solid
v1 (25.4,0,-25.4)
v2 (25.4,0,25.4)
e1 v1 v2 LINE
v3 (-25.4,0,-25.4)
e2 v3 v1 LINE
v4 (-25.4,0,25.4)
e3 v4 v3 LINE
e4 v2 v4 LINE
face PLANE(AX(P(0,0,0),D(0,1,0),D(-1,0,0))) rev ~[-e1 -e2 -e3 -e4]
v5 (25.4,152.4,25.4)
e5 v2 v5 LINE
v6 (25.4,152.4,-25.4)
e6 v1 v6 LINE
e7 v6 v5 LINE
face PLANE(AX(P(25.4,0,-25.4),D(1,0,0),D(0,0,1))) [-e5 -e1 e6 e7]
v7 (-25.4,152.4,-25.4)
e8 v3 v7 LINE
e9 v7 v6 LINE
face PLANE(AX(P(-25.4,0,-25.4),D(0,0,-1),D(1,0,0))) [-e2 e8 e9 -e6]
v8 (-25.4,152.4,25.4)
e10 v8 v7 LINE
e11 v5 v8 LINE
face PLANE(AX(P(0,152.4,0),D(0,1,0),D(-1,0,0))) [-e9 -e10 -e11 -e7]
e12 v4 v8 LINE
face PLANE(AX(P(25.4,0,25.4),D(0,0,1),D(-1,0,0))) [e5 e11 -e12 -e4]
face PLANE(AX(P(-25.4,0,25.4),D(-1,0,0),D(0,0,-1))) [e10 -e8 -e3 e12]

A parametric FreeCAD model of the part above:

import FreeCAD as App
import Part
import Sketcher
from FreeCAD import Vector
Q = App.Units.Quantity


def add_polygon(sketch, points):
    """Adds a closed chain of lines whose ends are joined by coincident constraints."""
    first, n = sketch.GeometryCount, len(points)
    for a, b in zip(points, points[1:] + points[:1]):
        sketch.addGeometry(Part.LineSegment(App.Vector(*a, 0), App.Vector(*b, 0)), False)
    for i in range(n):
        sketch.addConstraint(Sketcher.Constraint("Coincident", first + i, 2, first + (i + 1) % n, 1))

doc = App.newDocument("Part")
body = doc.addObject("PartDesign::Body", "Body")

# Sketch on XZ plane
sketch1 = body.newObject("Sketcher::SketchObject", "Sketch")
sketch1.AttachmentSupport = (doc.getObject("XZ_Plane"), [""])
sketch1.MapMode = "FlatFace"
add_polygon(sketch1, [(-25, 25), (25, 25), (25, -25), (-25, -25)])  # lines 0-3
sketch1.addConstraint(Sketcher.Constraint("Horizontal", 0))
sketch1.addConstraint(Sketcher.Constraint("Vertical", 1))
sketch1.addConstraint(Sketcher.Constraint("Horizontal", 2))
sketch1.addConstraint(Sketcher.Constraint("Vertical", 3))
sketch1.addConstraint(Sketcher.Constraint("Symmetric", 0, 2, 2, 2, -1, 1))
sketch1.addConstraint(Sketcher.Constraint("Equal", 2, 1))
sketch1.addConstraint(Sketcher.Constraint("DistanceX", 0, 1, 0, 2, Q("2 in")))
pad1 = body.newObject("PartDesign::Pad", "Pad")
pad1.Profile = sketch1
pad1.Length = Q("6 in")
pad1.Reversed = True

doc.recompute()
